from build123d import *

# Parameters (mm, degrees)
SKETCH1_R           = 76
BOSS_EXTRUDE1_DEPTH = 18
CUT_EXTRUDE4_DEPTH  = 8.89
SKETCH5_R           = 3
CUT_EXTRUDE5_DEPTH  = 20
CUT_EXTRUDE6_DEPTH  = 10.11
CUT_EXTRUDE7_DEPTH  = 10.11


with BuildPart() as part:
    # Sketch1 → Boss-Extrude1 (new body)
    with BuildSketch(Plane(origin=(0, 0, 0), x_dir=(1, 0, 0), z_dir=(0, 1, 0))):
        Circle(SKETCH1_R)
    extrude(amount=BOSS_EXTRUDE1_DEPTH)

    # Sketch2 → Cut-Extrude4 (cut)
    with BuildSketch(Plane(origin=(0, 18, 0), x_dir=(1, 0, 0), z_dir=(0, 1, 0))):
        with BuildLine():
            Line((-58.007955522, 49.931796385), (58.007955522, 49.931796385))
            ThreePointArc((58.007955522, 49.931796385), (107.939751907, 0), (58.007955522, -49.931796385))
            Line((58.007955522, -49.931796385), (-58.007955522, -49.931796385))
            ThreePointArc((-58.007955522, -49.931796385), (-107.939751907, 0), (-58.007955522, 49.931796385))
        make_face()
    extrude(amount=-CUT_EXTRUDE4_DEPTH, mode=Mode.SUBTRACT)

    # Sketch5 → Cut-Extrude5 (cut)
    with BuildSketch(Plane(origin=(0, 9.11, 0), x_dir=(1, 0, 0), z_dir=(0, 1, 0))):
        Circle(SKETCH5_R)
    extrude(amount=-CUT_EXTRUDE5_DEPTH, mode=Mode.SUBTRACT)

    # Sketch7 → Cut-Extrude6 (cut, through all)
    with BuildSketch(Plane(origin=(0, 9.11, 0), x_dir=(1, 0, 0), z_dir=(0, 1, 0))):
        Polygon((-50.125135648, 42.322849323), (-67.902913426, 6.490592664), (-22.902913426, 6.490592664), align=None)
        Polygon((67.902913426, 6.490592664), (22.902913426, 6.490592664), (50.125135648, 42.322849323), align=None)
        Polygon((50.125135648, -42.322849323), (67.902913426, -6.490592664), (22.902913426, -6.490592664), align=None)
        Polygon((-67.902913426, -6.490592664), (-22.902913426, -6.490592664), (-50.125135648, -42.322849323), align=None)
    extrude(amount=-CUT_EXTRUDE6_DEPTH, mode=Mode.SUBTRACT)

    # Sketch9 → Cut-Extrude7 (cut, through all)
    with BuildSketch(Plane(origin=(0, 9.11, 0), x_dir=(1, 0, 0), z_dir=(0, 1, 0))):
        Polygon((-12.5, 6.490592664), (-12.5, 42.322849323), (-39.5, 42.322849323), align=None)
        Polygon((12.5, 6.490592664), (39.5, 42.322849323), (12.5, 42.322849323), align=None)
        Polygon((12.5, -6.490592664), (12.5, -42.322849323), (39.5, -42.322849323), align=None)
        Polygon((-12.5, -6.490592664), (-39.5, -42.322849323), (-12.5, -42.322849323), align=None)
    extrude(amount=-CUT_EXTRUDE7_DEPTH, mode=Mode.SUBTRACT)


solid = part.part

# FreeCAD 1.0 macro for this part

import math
import FreeCAD as App
import Part
import Sketcher
from FreeCAD import Vector
Q = App.Units.Quantity


def add_polygon(sketch, points):
    """Adds a closed chain of lines whose ends are joined by coincident constraints."""
    first, n = sketch.GeometryCount, len(points)
    for a, b in zip(points, points[1:] + points[:1]):
        sketch.addGeometry(Part.LineSegment(App.Vector(*a, 0), App.Vector(*b, 0)), False)
    for i in range(n):
        sketch.addConstraint(Sketcher.Constraint("Coincident", first + i, 2, first + (i + 1) % n, 1))

doc = App.newDocument("Part")
body = doc.addObject("PartDesign::Body", "Body")

# Sketch on XZ plane
sketch1 = doc.addObject("Sketcher::SketchObject", "Sketch")
body.addObject(sketch1)
sketch1.AttachmentSupport = (doc.XZ_Plane, [""])
sketch1.MapMode = "FlatFace"
sketch1.addGeometry(Part.Circle(Vector(0, 0, 0), Vector(0, 0, 1), 76), False)
sketch1.addConstraint(Sketcher.Constraint("Coincident", 0, 3, -1, 1))
sketch1.addConstraint(Sketcher.Constraint("Diameter", 0, Q("152 mm")))
pad1 = doc.addObject("PartDesign::Pad", "Pad")
body.addObject(pad1)
pad1.Profile = sketch1
pad1.Length = 18
pad1.Reversed = True

# Sketch on XZ plane
sketch2 = doc.addObject("Sketcher::SketchObject", "Sketch001")
body.addObject(sketch2)
sketch2.AttachmentSupport = (doc.XZ_Plane, [""])
sketch2.MapMode = "FlatFace"
sketch2.AttachmentOffset = App.Placement(Vector(0, 0, -18), App.Rotation())
sketch2.addGeometry(Part.LineSegment(Vector(58, -50, 0), Vector(-58, -50, 0)), False)
sketch2.addGeometry(Part.ArcOfCircle(Part.Circle(Vector(-58, 0, 0), Vector(0, 0, 1), 50), math.radians(90), math.radians(270)), False)
sketch2.addGeometry(Part.LineSegment(Vector(-58, 50, 0), Vector(58, 50, 0)), False)
sketch2.addGeometry(Part.ArcOfCircle(Part.Circle(Vector(58, 0, 0), Vector(0, 0, 1), 50), math.radians(-90), math.radians(90)), False)
sketch2.addConstraint(Sketcher.Constraint("Tangent", 0, 2, 1, 2))
sketch2.addConstraint(Sketcher.Constraint("Tangent", 1, 1, 2, 1))
sketch2.addConstraint(Sketcher.Constraint("Tangent", 2, 2, 3, 2))
sketch2.addConstraint(Sketcher.Constraint("Tangent", 3, 1, 0, 1))
sketch2.addConstraint(Sketcher.Constraint("Horizontal", 0))
sketch2.addConstraint(Sketcher.Constraint("Horizontal", 2))
sketch2.addConstraint(Sketcher.Constraint("Symmetric", 1, 3, 3, 3, -1, 1))
sketch2.addConstraint(Sketcher.Constraint("Radius", 1, Q("49.931796 mm")))
sketch2.addConstraint(Sketcher.Constraint("DistanceX", 0, 2, 0, 1, Q("116.015911 mm")))
pocket1 = doc.addObject("PartDesign::Pocket", "Pocket")
body.addObject(pocket1)
pocket1.Profile = sketch2
pocket1.Length = 8.89
pocket1.Reversed = True

# Sketch on XZ plane
sketch3 = doc.addObject("Sketcher::SketchObject", "Sketch002")
body.addObject(sketch3)
sketch3.AttachmentSupport = (doc.XZ_Plane, [""])
sketch3.MapMode = "FlatFace"
sketch3.AttachmentOffset = App.Placement(Vector(0, 0, -9.11), App.Rotation())
sketch3.addGeometry(Part.Circle(Vector(0, 0, 0), Vector(0, 0, 1), 3), False)
sketch3.addConstraint(Sketcher.Constraint("Coincident", 0, 3, -1, 1))
sketch3.addConstraint(Sketcher.Constraint("Diameter", 0, Q("6 mm")))
pocket2 = doc.addObject("PartDesign::Pocket", "Pocket001")
body.addObject(pocket2)
pocket2.Profile = sketch3
pocket2.Length = 20
pocket2.Reversed = True

# Sketch on XZ plane
sketch4 = doc.addObject("Sketcher::SketchObject", "Sketch003")
body.addObject(sketch4)
sketch4.AttachmentSupport = (doc.XZ_Plane, [""])
sketch4.MapMode = "FlatFace"
sketch4.AttachmentOffset = App.Placement(Vector(0, 0, -9.11), App.Rotation())
add_polygon(sketch4, [(-50, -42), (-68, -6), (-23, -6)])  # lines 0-2
add_polygon(sketch4, [(23, -6), (68, -6), (50, -42)])  # lines 3-5
add_polygon(sketch4, [(50, 42), (68, 6), (23, 6)])  # lines 6-8
add_polygon(sketch4, [(-23, 6), (-68, 6), (-50, 42)])  # lines 9-11
sketch4.addConstraint(Sketcher.Constraint("Horizontal", 1))
sketch4.addConstraint(Sketcher.Constraint("Horizontal", 3))
sketch4.addConstraint(Sketcher.Constraint("Horizontal", 7))
sketch4.addConstraint(Sketcher.Constraint("Horizontal", 9))
sketch4.addConstraint(Sketcher.Constraint("Symmetric", 0, 2, 6, 2, -1, 1))
sketch4.addConstraint(Sketcher.Constraint("Symmetric", 2, 2, 8, 2, -1, 1))
sketch4.addConstraint(Sketcher.Constraint("Symmetric", 3, 2, 9, 2, -1, 1))
sketch4.addConstraint(Sketcher.Constraint("Symmetric", 4, 2, 10, 2, -1, 1))
sketch4.addConstraint(Sketcher.Constraint("Symmetric", 0, 2, 3, 2, -2))
sketch4.addConstraint(Sketcher.Constraint("Symmetric", 2, 2, 4, 2, -2))
sketch4.addConstraint(Sketcher.Constraint("Parallel", 2, 8))
sketch4.addConstraint(Sketcher.Constraint("Parallel", 5, 11))
sketch4.addConstraint(Sketcher.Constraint("Vertical", 5, 2, 7, 2))
sketch4.addConstraint(Sketcher.Constraint("DistanceX", 1, 1, 1, 2, Q("45 mm")))
sketch4.addConstraint(Sketcher.Constraint("Distance", 0, Q("40 mm")))
sketch4.addConstraint(Sketcher.Constraint("Distance", 2, Q("45 mm")))
sketch4.addConstraint(Sketcher.Constraint("DistanceY", 4, 2, 8, 2, Q("84.645699 mm")))
sketch4.addConstraint(Sketcher.Constraint("DistanceX", 2, 2, 3, 2, Q("118.028049 mm")))
pocket3 = doc.addObject("PartDesign::Pocket", "Pocket002")
body.addObject(pocket3)
pocket3.Profile = sketch4
pocket3.Type = "ThroughAll"
pocket3.Reversed = True

# Sketch on XZ plane
sketch5 = doc.addObject("Sketcher::SketchObject", "Sketch004")
body.addObject(sketch5)
sketch5.AttachmentSupport = (doc.XZ_Plane, [""])
sketch5.MapMode = "FlatFace"
sketch5.AttachmentOffset = App.Placement(Vector(0, 0, -9.11), App.Rotation())
add_polygon(sketch5, [(-12, -6), (-12, -42), (-40, -42)])  # lines 0-2
add_polygon(sketch5, [(12, -6), (40, -42), (12, -42)])  # lines 3-5
add_polygon(sketch5, [(12, 6), (12, 42), (40, 42)])  # lines 6-8
add_polygon(sketch5, [(-12, 6), (-40, 42), (-12, 42)])  # lines 9-11
sketch5.addConstraint(Sketcher.Constraint("Vertical", 0))
sketch5.addConstraint(Sketcher.Constraint("Horizontal", 1))
sketch5.addConstraint(Sketcher.Constraint("Horizontal", 4))
sketch5.addConstraint(Sketcher.Constraint("Vertical", 5))
sketch5.addConstraint(Sketcher.Constraint("Vertical", 6))
sketch5.addConstraint(Sketcher.Constraint("Horizontal", 7))
sketch5.addConstraint(Sketcher.Constraint("Horizontal", 10))
sketch5.addConstraint(Sketcher.Constraint("Vertical", 11))
sketch5.addConstraint(Sketcher.Constraint("Symmetric", 0, 2, 6, 2, -1, 1))
sketch5.addConstraint(Sketcher.Constraint("Symmetric", 3, 2, 9, 2, -1, 1))
sketch5.addConstraint(Sketcher.Constraint("Symmetric", 5, 2, 11, 2, -1, 1))
sketch5.addConstraint(Sketcher.Constraint("Symmetric", 1, 2, 3, 2, -2))
sketch5.addConstraint(Sketcher.Constraint("Symmetric", 2, 2, 5, 2, -2))
sketch5.addConstraint(Sketcher.Constraint("Parallel", 2, 8))
sketch5.addConstraint(Sketcher.Constraint("Horizontal", 8, 2, 11, 2))
sketch5.addConstraint(Sketcher.Constraint("DistanceX", 1, 2, 1, 1, Q("27 mm")))
sketch5.addConstraint(Sketcher.Constraint("DistanceX", 0, 2, 3, 2, Q("52 mm")))
sketch5.addConstraint(Sketcher.Constraint("DistanceY", 4, 2, 6, 2, Q("84.645699 mm")))
sketch5.addConstraint(Sketcher.Constraint("Distance", 2, Q("44.865918 mm")))
pocket4 = doc.addObject("PartDesign::Pocket", "Pocket003")
body.addObject(pocket4)
pocket4.Profile = sketch5
pocket4.Type = "ThroughAll"
pocket4.Reversed = True

doc.recompute()
